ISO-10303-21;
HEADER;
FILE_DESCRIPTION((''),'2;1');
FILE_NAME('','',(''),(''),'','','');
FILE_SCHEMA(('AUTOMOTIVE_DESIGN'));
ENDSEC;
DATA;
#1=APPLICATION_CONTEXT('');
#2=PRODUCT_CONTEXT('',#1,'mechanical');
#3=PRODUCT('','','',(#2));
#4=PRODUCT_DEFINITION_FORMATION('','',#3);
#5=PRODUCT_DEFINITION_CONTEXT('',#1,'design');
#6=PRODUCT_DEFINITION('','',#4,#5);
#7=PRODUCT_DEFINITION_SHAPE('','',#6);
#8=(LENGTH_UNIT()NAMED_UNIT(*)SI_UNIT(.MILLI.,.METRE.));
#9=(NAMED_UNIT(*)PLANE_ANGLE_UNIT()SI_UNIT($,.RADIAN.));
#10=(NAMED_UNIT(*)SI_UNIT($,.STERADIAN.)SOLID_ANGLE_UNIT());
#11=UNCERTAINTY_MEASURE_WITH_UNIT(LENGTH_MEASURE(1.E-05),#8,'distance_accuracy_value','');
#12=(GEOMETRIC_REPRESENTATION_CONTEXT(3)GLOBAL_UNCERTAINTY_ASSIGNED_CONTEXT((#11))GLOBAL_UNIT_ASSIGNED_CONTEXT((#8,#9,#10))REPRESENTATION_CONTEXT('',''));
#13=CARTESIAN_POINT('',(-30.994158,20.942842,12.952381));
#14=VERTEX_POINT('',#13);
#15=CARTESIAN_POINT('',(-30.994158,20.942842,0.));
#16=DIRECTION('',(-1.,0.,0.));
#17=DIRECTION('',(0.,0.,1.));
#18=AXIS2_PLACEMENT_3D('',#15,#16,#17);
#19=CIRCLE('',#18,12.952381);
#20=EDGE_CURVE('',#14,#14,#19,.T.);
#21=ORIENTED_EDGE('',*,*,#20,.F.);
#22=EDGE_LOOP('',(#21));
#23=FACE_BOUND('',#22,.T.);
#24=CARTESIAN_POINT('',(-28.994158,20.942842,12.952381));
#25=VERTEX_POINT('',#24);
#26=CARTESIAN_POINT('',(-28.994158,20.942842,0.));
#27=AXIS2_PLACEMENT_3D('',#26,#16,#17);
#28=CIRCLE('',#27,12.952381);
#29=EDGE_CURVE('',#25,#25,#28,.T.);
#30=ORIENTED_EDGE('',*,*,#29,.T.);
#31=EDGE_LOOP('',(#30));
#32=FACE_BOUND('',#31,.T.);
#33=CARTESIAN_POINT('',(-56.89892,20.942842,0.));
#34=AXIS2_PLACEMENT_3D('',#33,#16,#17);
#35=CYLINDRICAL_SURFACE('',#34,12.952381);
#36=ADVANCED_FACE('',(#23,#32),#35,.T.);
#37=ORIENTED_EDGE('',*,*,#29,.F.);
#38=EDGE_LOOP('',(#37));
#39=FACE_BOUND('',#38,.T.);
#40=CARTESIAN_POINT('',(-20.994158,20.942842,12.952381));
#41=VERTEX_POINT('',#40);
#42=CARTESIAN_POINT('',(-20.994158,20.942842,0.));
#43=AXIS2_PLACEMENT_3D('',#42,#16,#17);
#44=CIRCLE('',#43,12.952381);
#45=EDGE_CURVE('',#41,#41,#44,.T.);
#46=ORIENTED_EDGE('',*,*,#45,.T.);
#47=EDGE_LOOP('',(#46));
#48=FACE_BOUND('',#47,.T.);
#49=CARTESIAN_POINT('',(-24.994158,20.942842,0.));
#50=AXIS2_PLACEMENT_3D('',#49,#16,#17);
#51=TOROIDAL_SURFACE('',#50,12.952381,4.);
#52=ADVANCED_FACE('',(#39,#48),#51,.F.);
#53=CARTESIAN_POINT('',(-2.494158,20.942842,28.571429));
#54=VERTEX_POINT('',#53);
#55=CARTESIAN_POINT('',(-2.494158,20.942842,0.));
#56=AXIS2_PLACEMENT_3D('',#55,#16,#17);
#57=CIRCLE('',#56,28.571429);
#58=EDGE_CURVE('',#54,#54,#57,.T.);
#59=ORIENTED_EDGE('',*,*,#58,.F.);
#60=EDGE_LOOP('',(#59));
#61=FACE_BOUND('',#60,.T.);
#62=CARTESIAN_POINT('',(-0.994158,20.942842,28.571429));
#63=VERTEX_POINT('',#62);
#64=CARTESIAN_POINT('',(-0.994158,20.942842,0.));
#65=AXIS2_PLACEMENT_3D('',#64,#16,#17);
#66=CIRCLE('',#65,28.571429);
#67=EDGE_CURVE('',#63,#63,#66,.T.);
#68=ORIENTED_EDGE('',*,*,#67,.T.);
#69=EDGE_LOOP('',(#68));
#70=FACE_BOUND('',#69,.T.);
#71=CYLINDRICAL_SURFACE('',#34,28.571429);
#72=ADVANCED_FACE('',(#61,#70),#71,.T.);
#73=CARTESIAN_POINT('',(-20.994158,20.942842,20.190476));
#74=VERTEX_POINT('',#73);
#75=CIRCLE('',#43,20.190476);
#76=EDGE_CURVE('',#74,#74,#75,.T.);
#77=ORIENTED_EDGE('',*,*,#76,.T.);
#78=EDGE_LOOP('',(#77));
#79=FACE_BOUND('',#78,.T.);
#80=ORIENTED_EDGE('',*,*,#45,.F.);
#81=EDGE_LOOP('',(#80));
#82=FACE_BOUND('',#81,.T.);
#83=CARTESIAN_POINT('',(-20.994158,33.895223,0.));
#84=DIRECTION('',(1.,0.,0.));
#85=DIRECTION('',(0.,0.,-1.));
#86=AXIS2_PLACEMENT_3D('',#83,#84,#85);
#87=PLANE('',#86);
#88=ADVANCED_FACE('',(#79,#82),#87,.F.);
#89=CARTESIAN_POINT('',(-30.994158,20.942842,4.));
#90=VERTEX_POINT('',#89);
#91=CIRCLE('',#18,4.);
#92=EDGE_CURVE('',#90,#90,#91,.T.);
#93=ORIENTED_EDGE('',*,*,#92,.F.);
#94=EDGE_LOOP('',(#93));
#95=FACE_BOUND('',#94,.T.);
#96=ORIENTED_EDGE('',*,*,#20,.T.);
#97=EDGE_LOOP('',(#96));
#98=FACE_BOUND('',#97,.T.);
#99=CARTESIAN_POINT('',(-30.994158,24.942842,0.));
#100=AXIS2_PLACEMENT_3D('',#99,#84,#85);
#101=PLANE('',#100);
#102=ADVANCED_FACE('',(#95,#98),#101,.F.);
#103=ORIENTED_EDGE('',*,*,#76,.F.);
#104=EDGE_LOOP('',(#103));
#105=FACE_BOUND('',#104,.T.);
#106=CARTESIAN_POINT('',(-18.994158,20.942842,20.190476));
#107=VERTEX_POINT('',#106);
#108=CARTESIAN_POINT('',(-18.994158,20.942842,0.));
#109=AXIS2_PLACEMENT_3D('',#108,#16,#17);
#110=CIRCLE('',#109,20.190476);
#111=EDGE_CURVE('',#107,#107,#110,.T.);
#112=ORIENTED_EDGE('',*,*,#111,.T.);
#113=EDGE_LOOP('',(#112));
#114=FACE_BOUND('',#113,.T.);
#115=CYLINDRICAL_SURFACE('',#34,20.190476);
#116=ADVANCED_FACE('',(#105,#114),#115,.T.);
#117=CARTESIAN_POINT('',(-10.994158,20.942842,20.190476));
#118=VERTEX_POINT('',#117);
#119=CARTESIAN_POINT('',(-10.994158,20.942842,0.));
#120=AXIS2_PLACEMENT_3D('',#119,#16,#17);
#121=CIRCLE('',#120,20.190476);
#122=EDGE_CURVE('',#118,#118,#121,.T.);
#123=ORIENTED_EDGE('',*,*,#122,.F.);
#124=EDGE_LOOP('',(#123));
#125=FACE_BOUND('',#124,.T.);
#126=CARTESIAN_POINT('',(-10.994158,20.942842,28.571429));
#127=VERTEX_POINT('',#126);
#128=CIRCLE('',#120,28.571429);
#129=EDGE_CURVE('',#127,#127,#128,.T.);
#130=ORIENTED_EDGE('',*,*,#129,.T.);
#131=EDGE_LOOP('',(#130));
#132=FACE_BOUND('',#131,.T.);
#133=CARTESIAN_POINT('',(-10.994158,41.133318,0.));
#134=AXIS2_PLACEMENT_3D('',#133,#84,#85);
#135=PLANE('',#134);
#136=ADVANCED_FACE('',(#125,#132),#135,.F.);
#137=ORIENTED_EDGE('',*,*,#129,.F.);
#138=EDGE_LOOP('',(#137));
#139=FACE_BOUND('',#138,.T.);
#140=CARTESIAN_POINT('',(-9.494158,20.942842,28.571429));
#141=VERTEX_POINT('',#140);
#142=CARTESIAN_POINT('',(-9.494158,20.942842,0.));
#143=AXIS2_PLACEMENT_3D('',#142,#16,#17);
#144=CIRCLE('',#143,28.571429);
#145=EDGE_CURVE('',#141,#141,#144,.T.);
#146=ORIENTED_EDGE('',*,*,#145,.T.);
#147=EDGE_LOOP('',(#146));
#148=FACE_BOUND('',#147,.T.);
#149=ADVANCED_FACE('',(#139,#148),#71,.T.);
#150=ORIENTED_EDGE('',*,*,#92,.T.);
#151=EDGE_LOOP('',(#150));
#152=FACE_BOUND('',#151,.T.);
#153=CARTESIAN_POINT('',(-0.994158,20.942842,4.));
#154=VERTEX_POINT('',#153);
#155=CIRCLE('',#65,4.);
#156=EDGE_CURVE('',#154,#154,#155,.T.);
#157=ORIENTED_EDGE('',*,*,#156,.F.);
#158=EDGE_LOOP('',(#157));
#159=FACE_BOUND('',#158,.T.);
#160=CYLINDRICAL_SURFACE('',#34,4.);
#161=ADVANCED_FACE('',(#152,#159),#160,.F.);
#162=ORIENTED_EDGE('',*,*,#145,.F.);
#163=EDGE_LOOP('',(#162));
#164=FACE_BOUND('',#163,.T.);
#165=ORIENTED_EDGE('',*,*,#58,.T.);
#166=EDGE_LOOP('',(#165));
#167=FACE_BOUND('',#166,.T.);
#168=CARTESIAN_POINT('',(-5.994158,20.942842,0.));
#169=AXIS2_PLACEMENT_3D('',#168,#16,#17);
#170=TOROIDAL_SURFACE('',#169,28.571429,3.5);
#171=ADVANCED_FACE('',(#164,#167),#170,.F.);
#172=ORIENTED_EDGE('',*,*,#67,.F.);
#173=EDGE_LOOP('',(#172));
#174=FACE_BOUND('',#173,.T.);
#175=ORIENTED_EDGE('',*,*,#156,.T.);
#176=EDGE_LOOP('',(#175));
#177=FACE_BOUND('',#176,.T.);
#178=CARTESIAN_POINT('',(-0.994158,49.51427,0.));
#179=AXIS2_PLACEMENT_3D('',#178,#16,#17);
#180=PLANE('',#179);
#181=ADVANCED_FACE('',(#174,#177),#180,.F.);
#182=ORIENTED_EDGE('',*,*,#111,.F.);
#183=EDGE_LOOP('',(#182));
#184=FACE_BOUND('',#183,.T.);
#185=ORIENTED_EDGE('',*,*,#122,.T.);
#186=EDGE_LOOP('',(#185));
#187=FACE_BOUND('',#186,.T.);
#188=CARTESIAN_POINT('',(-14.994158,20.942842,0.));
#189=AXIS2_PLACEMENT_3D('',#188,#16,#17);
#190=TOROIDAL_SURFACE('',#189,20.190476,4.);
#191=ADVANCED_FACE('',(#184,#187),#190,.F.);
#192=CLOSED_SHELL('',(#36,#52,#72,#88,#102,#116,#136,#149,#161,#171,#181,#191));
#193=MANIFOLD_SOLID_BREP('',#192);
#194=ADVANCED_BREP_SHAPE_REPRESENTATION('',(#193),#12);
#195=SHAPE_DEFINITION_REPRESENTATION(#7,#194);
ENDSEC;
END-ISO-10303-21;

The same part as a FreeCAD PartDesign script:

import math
import FreeCAD as App
import Part
import Sketcher
from FreeCAD import Vector


def add_polygon(sketch, points):
    """Adds a closed chain of lines whose ends are joined by coincident constraints."""
    first, n = sketch.GeometryCount, len(points)
    for a, b in zip(points, points[1:] + points[:1]):
        sketch.addGeometry(Part.LineSegment(App.Vector(*a, 0), App.Vector(*b, 0)), False)
    for i in range(n):
        sketch.addConstraint(Sketcher.Constraint("Coincident", first + i, 2, first + (i + 1) % n, 1))

doc = App.newDocument("Part")
body = doc.addObject("PartDesign::Body", "Body")

# Sketch on XY plane
sketch1 = doc.addObject("Sketcher::SketchObject", "Sketch")
body.addObject(sketch1)
sketch1.AttachmentSupport = (doc.XY_Plane, [""])
sketch1.MapMode = "FlatFace"
add_polygon(sketch1, [(-30.994158, 33.895223), (-30.994158, 24.942842), (-0.994158, 24.942842), (-0.994158, 49.51427), (-10.994158, 49.51427), (-10.994158, 41.133318), (-20.994158, 41.133318), (-20.994158, 33.895223)])  # lines 0-7
sketch1.addGeometry(Part.LineSegment(Vector(-30.994158, 20.942842, 0), Vector(-0.994158, 20.942842, 0)), True)  # axis
sketch1.addConstraint(Sketcher.Constraint("Vertical", 0))
sketch1.addConstraint(Sketcher.Constraint("Horizontal", 1))
sketch1.addConstraint(Sketcher.Constraint("Vertical", 2))
sketch1.addConstraint(Sketcher.Constraint("Horizontal", 3))
sketch1.addConstraint(Sketcher.Constraint("Vertical", 4))
sketch1.addConstraint(Sketcher.Constraint("Horizontal", 5))
sketch1.addConstraint(Sketcher.Constraint("Vertical", 6))
sketch1.addConstraint(Sketcher.Constraint("Horizontal", 7))
sketch1.addConstraint(Sketcher.Constraint("Horizontal", 8))
sketch1.addConstraint(Sketcher.Constraint("Vertical", 7, 2, 8, 1))
sketch1.addConstraint(Sketcher.Constraint("Vertical", 2, 2, 8, 2))
sketch1.addConstraint(Sketcher.Constraint("Equal", 3, 5))
sketch1.addConstraint(Sketcher.Constraint("Equal", 5, 7))
sketch1.addConstraint(Sketcher.Constraint("DistanceX", 1, 1, 1, 2, 30.0))
sketch1.addConstraint(Sketcher.Constraint("DistanceY", 8, 1, 0, 2, 4.0))
sketch1.addConstraint(Sketcher.Constraint("DistanceY", 0, 2, 0, 1, 8.952381))
sketch1.addConstraint(Sketcher.Constraint("DistanceY", 2, 1, 2, 2, 24.571429))
sketch1.addConstraint(Sketcher.Constraint("DistanceY", 4, 2, 4, 1, 8.380952))
sketch1.addConstraint(Sketcher.Constraint("DistanceX", 0, 2, -1, 1, 30.994158))
sketch1.addConstraint(Sketcher.Constraint("DistanceY", -1, 1, 0, 2, 24.942842))
revolution = doc.addObject("PartDesign::Revolution", "Revolution")
body.addObject(revolution)
revolution.Profile = sketch1
revolution.ReferenceAxis = (sketch1, ["Axis0"])
revolution.Angle = 360

# Sketch on XY plane
sketch2 = doc.addObject("Sketcher::SketchObject", "Sketch001")
body.addObject(sketch2)
sketch2.AttachmentSupport = (doc.XY_Plane, [""])
sketch2.MapMode = "FlatFace"
sketch2.addGeometry(Part.LineSegment(Vector(-20.994158, 33.895223, 0), Vector(-28.994158, 33.895223, 0)), False)
sketch2.addGeometry(Part.ArcOfCircle(Part.Circle(Vector(-24.994158, 33.895223, 0), Vector(0, 0, 1), 4), math.radians(180), math.radians(360)), False)
sketch2.addGeometry(Part.LineSegment(Vector(-10.994158, 41.133318, 0), Vector(-18.994158, 41.133318, 0)), False)
sketch2.addGeometry(Part.ArcOfCircle(Part.Circle(Vector(-14.994158, 41.133318, 0), Vector(0, 0, 1), 4), math.radians(180), math.radians(360)), False)
sketch2.addGeometry(Part.LineSegment(Vector(-2.494158, 49.51427, 0), Vector(-9.494158, 49.51427, 0)), False)
sketch2.addGeometry(Part.ArcOfCircle(Part.Circle(Vector(-5.994158, 49.51427, 0), Vector(0, 0, 1), 3.5), math.radians(180), math.radians(360)), False)
sketch2.addGeometry(Part.LineSegment(Vector(-28.994158, 20.942842, 0), Vector(-2.494158, 20.942842, 0)), True)  # axis
sketch2.addConstraint(Sketcher.Constraint("Coincident", 0, 1, 1, 2))
sketch2.addConstraint(Sketcher.Constraint("Coincident", 1, 1, 0, 2))
sketch2.addConstraint(Sketcher.Constraint("Coincident", 2, 1, 3, 2))
sketch2.addConstraint(Sketcher.Constraint("Coincident", 3, 1, 2, 2))
sketch2.addConstraint(Sketcher.Constraint("Coincident", 4, 1, 5, 2))
sketch2.addConstraint(Sketcher.Constraint("Coincident", 5, 1, 4, 2))
sketch2.addConstraint(Sketcher.Constraint("Horizontal", 0))
sketch2.addConstraint(Sketcher.Constraint("Horizontal", 2))
sketch2.addConstraint(Sketcher.Constraint("Horizontal", 4))
sketch2.addConstraint(Sketcher.Constraint("Horizontal", 6))
sketch2.addConstraint(Sketcher.Constraint("Equal", 1, 3))
sketch2.addConstraint(Sketcher.Constraint("Horizontal", 1, 3, 0, 1))
sketch2.addConstraint(Sketcher.Constraint("Horizontal", 3, 3, 2, 1))
sketch2.addConstraint(Sketcher.Constraint("Horizontal", 5, 3, 4, 1))
sketch2.addConstraint(Sketcher.Constraint("Vertical", 1, 1, 6, 1))
sketch2.addConstraint(Sketcher.Constraint("Vertical", 4, 1, 6, 2))
sketch2.addConstraint(Sketcher.Constraint("Radius", 1, 4.0))
sketch2.addConstraint(Sketcher.Constraint("Radius", 5, 3.5))
sketch2.addConstraint(Sketcher.Constraint("DistanceX", 6, 1, 6, 2, 26.5))
sketch2.addConstraint(Sketcher.Constraint("DistanceX", 1, 3, 3, 3, 10.0))
sketch2.addConstraint(Sketcher.Constraint("DistanceX", 1, 3, -1, 1, 24.994158))
sketch2.addConstraint(Sketcher.Constraint("DistanceY", -1, 1, 5, 3, 49.51427))
sketch2.addConstraint(Sketcher.Constraint("DistanceY", -1, 1, 6, 1, 20.942842))
sketch2.addConstraint(Sketcher.Constraint("DistanceY", 6, 1, 1, 1, 12.952381))
sketch2.addConstraint(Sketcher.Constraint("DistanceY", -1, 1, 3, 3, 41.133318))
groove = doc.addObject("PartDesign::Groove", "Groove")
body.addObject(groove)
groove.Profile = sketch2
groove.ReferenceAxis = (sketch2, ["Axis0"])
groove.Angle = 360

doc.recompute()
